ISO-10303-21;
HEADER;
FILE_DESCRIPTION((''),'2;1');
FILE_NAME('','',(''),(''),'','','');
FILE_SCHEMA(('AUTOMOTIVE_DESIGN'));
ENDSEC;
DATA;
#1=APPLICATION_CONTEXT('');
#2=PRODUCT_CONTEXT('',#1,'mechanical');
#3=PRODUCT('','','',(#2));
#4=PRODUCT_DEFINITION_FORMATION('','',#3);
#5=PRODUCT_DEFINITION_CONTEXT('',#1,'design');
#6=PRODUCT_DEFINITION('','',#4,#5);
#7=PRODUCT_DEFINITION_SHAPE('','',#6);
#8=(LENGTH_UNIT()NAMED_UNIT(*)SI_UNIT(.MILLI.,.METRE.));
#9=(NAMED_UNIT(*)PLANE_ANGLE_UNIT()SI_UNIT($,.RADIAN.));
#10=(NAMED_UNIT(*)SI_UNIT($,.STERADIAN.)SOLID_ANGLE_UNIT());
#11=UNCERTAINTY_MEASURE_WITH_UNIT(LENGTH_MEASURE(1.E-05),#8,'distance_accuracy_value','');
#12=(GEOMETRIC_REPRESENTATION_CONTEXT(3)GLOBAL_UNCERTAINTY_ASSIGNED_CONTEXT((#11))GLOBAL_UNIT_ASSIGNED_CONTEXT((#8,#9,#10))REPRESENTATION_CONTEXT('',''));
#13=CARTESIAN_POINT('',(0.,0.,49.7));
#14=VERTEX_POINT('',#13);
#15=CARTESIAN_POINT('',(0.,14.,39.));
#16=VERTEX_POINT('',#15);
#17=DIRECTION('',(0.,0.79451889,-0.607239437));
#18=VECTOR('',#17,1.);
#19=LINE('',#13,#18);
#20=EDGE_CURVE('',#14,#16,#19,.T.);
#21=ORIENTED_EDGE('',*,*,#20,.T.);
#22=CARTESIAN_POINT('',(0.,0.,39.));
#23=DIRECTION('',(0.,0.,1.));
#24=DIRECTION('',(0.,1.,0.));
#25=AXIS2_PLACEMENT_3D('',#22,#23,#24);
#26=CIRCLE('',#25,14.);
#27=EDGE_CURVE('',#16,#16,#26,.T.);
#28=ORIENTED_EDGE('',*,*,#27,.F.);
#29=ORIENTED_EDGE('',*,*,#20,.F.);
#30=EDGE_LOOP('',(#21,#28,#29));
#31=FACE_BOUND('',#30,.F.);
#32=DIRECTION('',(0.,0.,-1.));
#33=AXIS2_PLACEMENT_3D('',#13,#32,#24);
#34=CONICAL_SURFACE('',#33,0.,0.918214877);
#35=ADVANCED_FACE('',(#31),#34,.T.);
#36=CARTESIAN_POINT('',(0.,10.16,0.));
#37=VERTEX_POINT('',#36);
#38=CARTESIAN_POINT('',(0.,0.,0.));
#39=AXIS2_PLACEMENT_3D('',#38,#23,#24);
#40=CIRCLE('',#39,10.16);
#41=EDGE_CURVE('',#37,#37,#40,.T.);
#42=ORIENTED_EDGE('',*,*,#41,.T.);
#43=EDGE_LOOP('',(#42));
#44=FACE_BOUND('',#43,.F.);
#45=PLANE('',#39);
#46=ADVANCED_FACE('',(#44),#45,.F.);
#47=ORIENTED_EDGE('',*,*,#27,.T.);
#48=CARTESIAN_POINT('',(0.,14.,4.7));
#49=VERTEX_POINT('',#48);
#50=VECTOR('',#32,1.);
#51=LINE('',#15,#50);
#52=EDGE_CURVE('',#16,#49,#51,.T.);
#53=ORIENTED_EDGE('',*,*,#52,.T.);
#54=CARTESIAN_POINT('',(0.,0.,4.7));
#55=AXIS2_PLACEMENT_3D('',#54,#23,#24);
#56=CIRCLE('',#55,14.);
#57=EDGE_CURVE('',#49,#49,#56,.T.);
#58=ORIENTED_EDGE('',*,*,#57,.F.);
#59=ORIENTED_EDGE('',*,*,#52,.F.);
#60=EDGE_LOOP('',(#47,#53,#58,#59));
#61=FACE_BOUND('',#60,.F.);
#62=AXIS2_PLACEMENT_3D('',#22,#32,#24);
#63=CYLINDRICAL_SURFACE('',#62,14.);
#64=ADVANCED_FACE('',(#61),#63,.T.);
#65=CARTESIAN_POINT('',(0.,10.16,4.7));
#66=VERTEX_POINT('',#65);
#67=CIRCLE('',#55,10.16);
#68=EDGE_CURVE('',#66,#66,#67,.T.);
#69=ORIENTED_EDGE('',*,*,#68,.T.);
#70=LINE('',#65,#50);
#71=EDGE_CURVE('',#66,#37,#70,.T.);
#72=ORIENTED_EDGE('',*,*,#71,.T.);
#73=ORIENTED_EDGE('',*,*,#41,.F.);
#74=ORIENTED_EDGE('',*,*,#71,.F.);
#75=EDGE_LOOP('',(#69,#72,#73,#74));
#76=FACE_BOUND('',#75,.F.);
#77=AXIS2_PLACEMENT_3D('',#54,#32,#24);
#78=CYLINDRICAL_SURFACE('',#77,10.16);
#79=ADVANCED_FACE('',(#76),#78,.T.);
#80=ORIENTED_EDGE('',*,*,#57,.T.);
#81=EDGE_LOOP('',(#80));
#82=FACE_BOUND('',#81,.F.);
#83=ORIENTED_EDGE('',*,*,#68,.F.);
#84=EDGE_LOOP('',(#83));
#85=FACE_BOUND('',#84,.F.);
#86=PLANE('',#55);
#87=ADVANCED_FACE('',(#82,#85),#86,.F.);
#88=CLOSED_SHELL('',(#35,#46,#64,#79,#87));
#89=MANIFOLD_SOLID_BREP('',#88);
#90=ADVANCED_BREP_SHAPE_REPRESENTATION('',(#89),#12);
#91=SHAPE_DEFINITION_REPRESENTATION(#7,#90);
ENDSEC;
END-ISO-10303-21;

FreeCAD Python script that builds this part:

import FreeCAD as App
import Part
import Sketcher


def add_polygon(sketch, points):
    """Adds a closed chain of lines whose ends are joined by coincident constraints."""
    first, n = sketch.GeometryCount, len(points)
    for a, b in zip(points, points[1:] + points[:1]):
        sketch.addGeometry(Part.LineSegment(App.Vector(*a, 0), App.Vector(*b, 0)), False)
    for i in range(n):
        sketch.addConstraint(Sketcher.Constraint("Coincident", first + i, 2, first + (i + 1) % n, 1))

doc = App.newDocument("Part")
body = doc.addObject("PartDesign::Body", "Body")

# Sketch on YZ plane
sketch1 = doc.addObject("Sketcher::SketchObject", "Sketch")
body.addObject(sketch1)
sketch1.AttachmentSupport = (doc.YZ_Plane, [""])
sketch1.MapMode = "FlatFace"
add_polygon(sketch1, [(0, 49.7), (0, 0), (10.2, 0), (10.2, 4.7), (14, 4.7), (14, 39)])  # lines 0-5
sketch1.addConstraint(Sketcher.Constraint("Vertical", 0))
sketch1.addConstraint(Sketcher.Constraint("Horizontal", 1))
sketch1.addConstraint(Sketcher.Constraint("Vertical", 2))
sketch1.addConstraint(Sketcher.Constraint("Horizontal", 3))
sketch1.addConstraint(Sketcher.Constraint("Vertical", 4))
sketch1.addConstraint(Sketcher.Constraint("Coincident", 0, 2, -1, 1))
sketch1.addConstraint(Sketcher.Constraint("DistanceY", 0, 2, 0, 1, 49.7))
sketch1.addConstraint(Sketcher.Constraint("DistanceY", 2, 1, 2, 2, 4.7))
sketch1.addConstraint(Sketcher.Constraint("DistanceX", -1, 1, 3, 2, 14.0))
sketch1.addConstraint(Sketcher.Constraint("DistanceY", -1, 1, 4, 2, 39.0))
sketch1.addConstraint(Sketcher.Constraint("DistanceX", 1, 1, 1, 2, 10.16))
revolution = doc.addObject("PartDesign::Revolution", "Revolution")
body.addObject(revolution)
revolution.Profile = sketch1
revolution.ReferenceAxis = (sketch1, ["V_Axis"])
revolution.Angle = 360

doc.recompute()
